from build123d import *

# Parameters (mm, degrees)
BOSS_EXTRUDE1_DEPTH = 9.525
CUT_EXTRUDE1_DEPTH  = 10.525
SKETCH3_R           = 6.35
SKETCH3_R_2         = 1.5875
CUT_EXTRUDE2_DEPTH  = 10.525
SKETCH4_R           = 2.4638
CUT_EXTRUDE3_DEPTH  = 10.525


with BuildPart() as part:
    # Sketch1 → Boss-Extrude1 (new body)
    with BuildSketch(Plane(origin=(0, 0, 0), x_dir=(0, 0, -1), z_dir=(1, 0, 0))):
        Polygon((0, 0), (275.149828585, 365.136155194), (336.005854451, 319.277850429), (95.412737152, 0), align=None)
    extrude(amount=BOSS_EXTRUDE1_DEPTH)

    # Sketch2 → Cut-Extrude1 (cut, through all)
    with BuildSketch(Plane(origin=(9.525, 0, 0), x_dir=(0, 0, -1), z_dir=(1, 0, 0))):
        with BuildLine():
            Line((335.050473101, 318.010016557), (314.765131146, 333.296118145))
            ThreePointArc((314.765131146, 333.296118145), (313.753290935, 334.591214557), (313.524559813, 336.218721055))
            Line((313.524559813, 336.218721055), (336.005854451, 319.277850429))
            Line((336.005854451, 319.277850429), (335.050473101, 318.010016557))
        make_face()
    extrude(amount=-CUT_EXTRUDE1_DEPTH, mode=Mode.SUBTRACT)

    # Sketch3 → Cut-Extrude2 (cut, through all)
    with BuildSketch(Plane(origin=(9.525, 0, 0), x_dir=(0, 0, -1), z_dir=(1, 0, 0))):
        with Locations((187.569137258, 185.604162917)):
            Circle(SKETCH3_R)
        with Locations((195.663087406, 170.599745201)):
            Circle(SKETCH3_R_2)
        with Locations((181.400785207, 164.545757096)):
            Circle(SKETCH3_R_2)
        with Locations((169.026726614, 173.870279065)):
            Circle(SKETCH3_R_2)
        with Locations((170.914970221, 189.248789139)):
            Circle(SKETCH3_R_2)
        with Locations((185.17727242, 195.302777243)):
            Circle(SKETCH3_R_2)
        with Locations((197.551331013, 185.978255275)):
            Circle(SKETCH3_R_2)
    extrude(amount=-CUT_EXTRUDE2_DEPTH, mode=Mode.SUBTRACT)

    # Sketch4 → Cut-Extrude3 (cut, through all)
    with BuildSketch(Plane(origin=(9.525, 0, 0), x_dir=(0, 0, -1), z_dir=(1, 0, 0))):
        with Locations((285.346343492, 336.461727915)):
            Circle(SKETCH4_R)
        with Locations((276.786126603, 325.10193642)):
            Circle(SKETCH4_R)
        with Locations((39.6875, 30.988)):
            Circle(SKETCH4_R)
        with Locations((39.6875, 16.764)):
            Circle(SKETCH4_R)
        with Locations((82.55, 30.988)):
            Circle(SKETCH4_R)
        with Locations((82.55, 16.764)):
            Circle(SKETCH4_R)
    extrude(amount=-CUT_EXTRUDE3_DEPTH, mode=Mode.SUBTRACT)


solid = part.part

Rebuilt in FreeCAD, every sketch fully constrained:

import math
import FreeCAD as App
import Part
import Sketcher

V = App.Vector
Q = App.Units.Quantity


def add_polygon(sketch, points):
    """Adds a closed chain of lines whose ends are joined by coincident constraints."""
    first, n = sketch.GeometryCount, len(points)
    for a, b in zip(points, points[1:] + points[:1]):
        sketch.addGeometry(Part.LineSegment(App.Vector(*a, 0), App.Vector(*b, 0)), False)
    for i in range(n):
        sketch.addConstraint(Sketcher.Constraint("Coincident", first + i, 2, first + (i + 1) % n, 1))

doc = App.newDocument("Part")
params = doc.addObject("Spreadsheet::Sheet", "Params")
for row, (alias, value) in enumerate([
    ("sketch1_length", "18 in"),
    ("sketch1_length2", "3 in"),
    ("pad1_length", "0.375 in"),
    ("sketch2_length", "1 in"),
    ("sketch2_radius", "0.125 in"),
    ("sketch2_length2", "0.0625 in"),
    ("sketch3_diameter", "0.5 in"),
    ("sketch3_diameter2", "0.125 in"),
    ("sketch4_diameter", "0.194 in"),
], start=1):
    params.set(f"A{row}", alias)
    params.set(f"B{row}", "=" + value)
    params.setAlias(f"B{row}", alias)

body = doc.addObject("PartDesign::Body", "Body")

sketch1 = body.newObject("Sketcher::SketchObject", "Sketch")
sketch1.AttachmentSupport = (doc.getObject("YZ_Plane"), [""])
sketch1.MapMode = "FlatFace"
add_polygon(sketch1, [(365, -275), (0, 0), (0, -95), (319, -336)])
sketch1.addConstraint([
    Sketcher.Constraint("Vertical", 1),
    Sketcher.Constraint("Coincident", 0, 2, -1, 1),
    Sketcher.Constraint("Parallel", 0, 2),
    Sketcher.Constraint("Perpendicular", 2, 3),
    Sketcher.Constraint("Distance", 0, Q("18 in")),
    Sketcher.Constraint("Distance", 3, Q("3 in")),
    Sketcher.Constraint("Angle", 0, Q("143 deg")),
])
sketch1.setExpression("Constraints[8]", "Params.sketch1_length")
sketch1.setExpression("Constraints[9]", "Params.sketch1_length2")
pad1 = body.newObject("PartDesign::Pad", "Pad")
pad1.Profile = sketch1
pad1.setExpression("Length", "Params.pad1_length")

sketch2 = body.newObject("Sketcher::SketchObject", "Sketch001")
sketch2.AttachmentSupport = (doc.getObject("YZ_Plane"), [""])
sketch2.MapMode = "FlatFace"
sketch2.AttachmentOffset = App.Placement(V(0, 0, 0.375 * 25.4), App.Rotation())
sketch2.addGeometry([
    Part.LineSegment(V(333.3, -314.8, 0), V(318, -335.1, 0)),
    Part.LineSegment(V(318, -335.1, 0), V(319.3, -336, 0)),
    Part.LineSegment(V(319.3, -336, 0), V(336.2, -313.5, 0)),
    Part.ArcOfCircle(Part.Circle(V(335.8, -316.7, 0), V(0, 0, 1), 3.2), math.radians(83), math.radians(143)),
], False)
sketch2.addConstraint([
    Sketcher.Constraint("Coincident", 0, 2, 1, 1),
    Sketcher.Constraint("Coincident", 1, 2, 2, 1),
    Sketcher.Constraint("Coincident", 2, 2, 3, 1),
    Sketcher.Constraint("Tangent", 3, 2, 0, 1),
    Sketcher.Constraint("Perpendicular", 0, 1),
    Sketcher.Constraint("Perpendicular", 1, 2),
    Sketcher.Constraint("Distance", 0, Q("1 in")),
    Sketcher.Constraint("Angle", 0, Q("-127 deg")),
    Sketcher.Constraint("Radius", 3, Q("0.125 in")),
    Sketcher.Constraint("Distance", 1, Q("0.0625 in")),
    Sketcher.Constraint("DistanceX", -1, 1, 1, 2, 319.27785),
    Sketcher.Constraint("DistanceY", 2, 2, -1, 1, 313.52456),
])
sketch2.setExpression("Constraints[6]", "Params.sketch2_length")
sketch2.setExpression("Constraints[8]", "Params.sketch2_radius")
sketch2.setExpression("Constraints[9]", "Params.sketch2_length2")
pocket1 = body.newObject("PartDesign::Pocket", "Pocket")
pocket1.Profile = sketch2
pocket1.Type = "ThroughAll"

sketch3 = body.newObject("Sketcher::SketchObject", "Sketch002")
sketch3.AttachmentSupport = (doc.getObject("YZ_Plane"), [""])
sketch3.MapMode = "FlatFace"
sketch3.AttachmentOffset = App.Placement(V(0, 0, 0.375 * 25.4), App.Rotation())
sketch3.addGeometry([
    Part.Circle(V(185.6, -187.6, 0), V(0, 0, 1), 6.3),
    Part.Circle(V(170.6, -195.7, 0), V(0, 0, 1), 1.6),
    Part.Circle(V(164.5, -181.4, 0), V(0, 0, 1), 1.6),
    Part.Circle(V(173.9, -169, 0), V(0, 0, 1), 1.6),
    Part.Circle(V(189.2, -170.9, 0), V(0, 0, 1), 1.6),
    Part.Circle(V(195.3, -185.2, 0), V(0, 0, 1), 1.6),
    Part.Circle(V(186, -197.6, 0), V(0, 0, 1), 1.6),
], False)
sketch3.addConstraint([
    Sketcher.Constraint("Equal", 1, 2),
    Sketcher.Constraint("Equal", 2, 3),
    Sketcher.Constraint("Equal", 3, 4),
    Sketcher.Constraint("Equal", 4, 5),
    Sketcher.Constraint("Equal", 5, 6),
    Sketcher.Constraint("Diameter", 0, Q("0.5 in")),
    Sketcher.Constraint("Diameter", 1, Q("0.125 in")),
    Sketcher.Constraint("DistanceX", 3, 3, 5, 3, 21.432498),
    Sketcher.Constraint("DistanceX", 2, 3, 6, 3, 21.432498),
    Sketcher.Constraint("DistanceX", -1, 1, 3, 3, 173.870279),
    Sketcher.Constraint("DistanceX", -1, 1, 4, 3, 189.248789),
    Sketcher.Constraint("DistanceY", 4, 3, -1, 1, 170.91497),
    Sketcher.Constraint("DistanceY", 6, 3, -1, 1, 197.551331),
    Sketcher.Constraint("DistanceY", 1, 3, 0, 3, 8.09395),
    Sketcher.Constraint("DistanceX", 2, 3, 1, 3, 6.053988),
    Sketcher.Constraint("DistanceX", 2, 3, 3, 3, 9.324522),
    Sketcher.Constraint("DistanceY", 2, 3, 3, 3, 12.374059),
    Sketcher.Constraint("DistanceY", 0, 3, 3, 3, 18.542411),
    Sketcher.Constraint("DistanceY", 6, 3, 5, 3, 12.374059),
    Sketcher.Constraint("DistanceX", -1, 1, 0, 3, 185.604163),
    Sketcher.Constraint("DistanceY", 0, 3, -1, 1, 187.569137),
])
sketch3.setExpression("Constraints[5]", "Params.sketch3_diameter")
sketch3.setExpression("Constraints[6]", "Params.sketch3_diameter2")
pocket2 = body.newObject("PartDesign::Pocket", "Pocket001")
pocket2.Profile = sketch3
pocket2.Type = "ThroughAll"

sketch4 = body.newObject("Sketcher::SketchObject", "Sketch003")
sketch4.AttachmentSupport = (doc.getObject("YZ_Plane"), [""])
sketch4.MapMode = "FlatFace"
sketch4.AttachmentOffset = App.Placement(V(0, 0, 0.375 * 25.4), App.Rotation())
sketch4.addGeometry([
    Part.Circle(V(336.5, -285.3, 0), V(0, 0, 1), 2.5),
    Part.Circle(V(325.1, -276.8, 0), V(0, 0, 1), 2.5),
    Part.Circle(V(31, -39.7, 0), V(0, 0, 1), 2.5),
    Part.Circle(V(16.8, -39.7, 0), V(0, 0, 1), 2.5),
    Part.Circle(V(31, -82.5, 0), V(0, 0, 1), 2.5),
    Part.Circle(V(16.8, -82.5, 0), V(0, 0, 1), 2.5),
], False)
sketch4.addConstraint([
    Sketcher.Constraint("Equal", 0, 1),
    Sketcher.Constraint("Equal", 1, 2),
    Sketcher.Constraint("Equal", 2, 3),
    Sketcher.Constraint("Equal", 3, 4),
    Sketcher.Constraint("Equal", 4, 5),
    Sketcher.Constraint("Horizontal", 2, 3, 3, 3),
    Sketcher.Constraint("Horizontal", 4, 3, 5, 3),
    Sketcher.Constraint("Vertical", 2, 3, 4, 3),
    Sketcher.Constraint("Vertical", 3, 3, 5, 3),
    Sketcher.Constraint("Diameter", 0, Q("0.194 in")),
    Sketcher.Constraint("DistanceX", -1, 1, 2, 3, Q("1.22 in")),
    Sketcher.Constraint("DistanceX", -1, 1, 3, 3, Q("0.66 in")),
    Sketcher.Constraint("DistanceY", 4, 3, -1, 1, Q("3.25 in")),
    Sketcher.Constraint("DistanceY", 2, 3, -1, 1, Q("1.5625 in")),
    Sketcher.Constraint("DistanceX", 1, 3, 0, 3, 11.359791),
    Sketcher.Constraint("DistanceX", -1, 1, 0, 3, 336.461728),
    Sketcher.Constraint("DistanceY", 0, 3, -1, 1, 285.346343),
    Sketcher.Constraint("DistanceY", 1, 3, -1, 1, 276.786127),
])
sketch4.setExpression("Constraints[9]", "Params.sketch4_diameter")
pocket3 = body.newObject("PartDesign::Pocket", "Pocket002")
pocket3.Profile = sketch4
pocket3.Type = "ThroughAll"

doc.recompute()
